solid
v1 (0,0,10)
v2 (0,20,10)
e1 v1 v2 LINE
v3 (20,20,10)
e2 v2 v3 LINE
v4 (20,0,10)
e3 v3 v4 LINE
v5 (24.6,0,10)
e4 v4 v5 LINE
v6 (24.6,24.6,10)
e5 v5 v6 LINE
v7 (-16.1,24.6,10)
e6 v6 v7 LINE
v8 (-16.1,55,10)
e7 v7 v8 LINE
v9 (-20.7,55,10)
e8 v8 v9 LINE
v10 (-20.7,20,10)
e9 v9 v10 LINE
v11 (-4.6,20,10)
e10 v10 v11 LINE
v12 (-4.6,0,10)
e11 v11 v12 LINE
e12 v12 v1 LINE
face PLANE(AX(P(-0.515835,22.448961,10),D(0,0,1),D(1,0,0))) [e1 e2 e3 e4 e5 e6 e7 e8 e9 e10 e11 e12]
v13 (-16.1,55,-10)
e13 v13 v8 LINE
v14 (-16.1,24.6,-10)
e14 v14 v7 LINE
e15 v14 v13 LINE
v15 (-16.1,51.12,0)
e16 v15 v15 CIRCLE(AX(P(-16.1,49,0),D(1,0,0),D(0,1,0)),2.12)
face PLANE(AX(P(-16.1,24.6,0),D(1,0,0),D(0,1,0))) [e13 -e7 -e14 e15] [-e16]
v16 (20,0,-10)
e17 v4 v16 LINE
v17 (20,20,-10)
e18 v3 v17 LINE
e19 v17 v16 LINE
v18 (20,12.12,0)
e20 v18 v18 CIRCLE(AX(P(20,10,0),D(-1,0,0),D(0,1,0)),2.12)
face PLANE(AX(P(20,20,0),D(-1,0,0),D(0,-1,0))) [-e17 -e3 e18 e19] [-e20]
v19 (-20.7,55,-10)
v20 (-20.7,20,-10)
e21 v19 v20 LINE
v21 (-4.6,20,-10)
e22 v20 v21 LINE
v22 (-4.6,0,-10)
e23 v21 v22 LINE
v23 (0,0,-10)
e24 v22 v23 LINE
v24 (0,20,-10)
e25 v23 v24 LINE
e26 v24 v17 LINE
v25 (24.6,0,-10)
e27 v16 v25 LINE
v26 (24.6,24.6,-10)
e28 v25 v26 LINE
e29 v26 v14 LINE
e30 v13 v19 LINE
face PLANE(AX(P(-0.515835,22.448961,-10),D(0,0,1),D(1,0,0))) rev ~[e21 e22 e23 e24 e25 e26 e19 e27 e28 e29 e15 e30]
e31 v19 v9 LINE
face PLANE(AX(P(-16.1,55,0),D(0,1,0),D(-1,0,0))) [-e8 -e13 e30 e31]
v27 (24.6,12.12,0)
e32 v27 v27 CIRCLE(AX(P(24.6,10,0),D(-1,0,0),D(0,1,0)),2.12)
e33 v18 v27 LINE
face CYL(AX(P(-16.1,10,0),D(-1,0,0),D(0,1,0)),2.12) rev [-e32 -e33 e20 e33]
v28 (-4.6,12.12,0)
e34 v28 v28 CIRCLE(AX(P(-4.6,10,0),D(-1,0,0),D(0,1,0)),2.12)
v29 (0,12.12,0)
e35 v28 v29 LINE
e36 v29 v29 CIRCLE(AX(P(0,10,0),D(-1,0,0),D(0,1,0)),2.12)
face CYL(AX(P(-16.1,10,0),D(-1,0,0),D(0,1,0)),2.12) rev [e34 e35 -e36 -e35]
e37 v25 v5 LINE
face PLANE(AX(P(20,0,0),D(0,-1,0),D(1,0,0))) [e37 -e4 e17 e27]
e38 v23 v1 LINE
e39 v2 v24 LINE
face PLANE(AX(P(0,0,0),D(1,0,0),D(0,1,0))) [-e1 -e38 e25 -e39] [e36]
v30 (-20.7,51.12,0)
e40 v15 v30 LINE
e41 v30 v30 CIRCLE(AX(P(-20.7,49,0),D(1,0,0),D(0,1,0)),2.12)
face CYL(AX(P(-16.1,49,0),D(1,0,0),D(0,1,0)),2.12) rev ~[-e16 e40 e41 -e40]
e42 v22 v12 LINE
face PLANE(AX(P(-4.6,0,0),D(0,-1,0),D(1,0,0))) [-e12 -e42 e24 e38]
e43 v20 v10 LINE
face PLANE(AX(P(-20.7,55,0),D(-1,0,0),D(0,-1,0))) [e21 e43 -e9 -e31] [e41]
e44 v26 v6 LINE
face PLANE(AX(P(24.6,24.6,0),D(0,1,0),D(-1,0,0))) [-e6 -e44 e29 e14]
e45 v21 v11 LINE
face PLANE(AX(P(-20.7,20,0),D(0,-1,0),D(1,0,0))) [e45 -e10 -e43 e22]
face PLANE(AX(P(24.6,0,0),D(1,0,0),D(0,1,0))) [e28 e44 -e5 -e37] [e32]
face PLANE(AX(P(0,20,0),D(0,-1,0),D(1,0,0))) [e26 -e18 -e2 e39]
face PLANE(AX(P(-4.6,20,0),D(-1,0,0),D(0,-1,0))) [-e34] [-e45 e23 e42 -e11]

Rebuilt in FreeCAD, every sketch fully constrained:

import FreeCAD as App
import Part
import Sketcher
Q = App.Units.Quantity


def add_polygon(sketch, points):
    """Adds a closed chain of lines whose ends are joined by coincident constraints."""
    first, n = sketch.GeometryCount, len(points)
    for a, b in zip(points, points[1:] + points[:1]):
        sketch.addGeometry(Part.LineSegment(App.Vector(*a, 0), App.Vector(*b, 0)), False)
    for i in range(n):
        sketch.addConstraint(Sketcher.Constraint("Coincident", first + i, 2, first + (i + 1) % n, 1))

doc = App.newDocument("Part")
body = doc.addObject("PartDesign::Body", "Body")

# Sketch on XY plane
sketch1 = doc.addObject("Sketcher::SketchObject", "Sketch")
body.addObject(sketch1)
sketch1.AttachmentSupport = (doc.XY_Plane, [""])
sketch1.MapMode = "FlatFace"
add_polygon(sketch1, [(20, 0), (24.6, 0), (24.6, 24.6), (-16.1, 24.6), (-16.1, 55), (-20.7, 55), (-20.7, 20), (-4.6, 20), (-4.6, 0), (0, 0), (0, 20), (20, 20)])  # lines 0-11
sketch1.addConstraint([
    Sketcher.Constraint("Horizontal", 0),
    Sketcher.Constraint("Vertical", 1),
    Sketcher.Constraint("Horizontal", 2),
    Sketcher.Constraint("Vertical", 3),
    Sketcher.Constraint("Horizontal", 4),
    Sketcher.Constraint("Vertical", 5),
    Sketcher.Constraint("Horizontal", 6),
    Sketcher.Constraint("Vertical", 7),
    Sketcher.Constraint("Horizontal", 8),
    Sketcher.Constraint("Vertical", 9),
    Sketcher.Constraint("Horizontal", 10),
    Sketcher.Constraint("Vertical", 11),
    Sketcher.Constraint("Coincident", 8, 2, -1, 1),
    Sketcher.Constraint("PointOnObject", 0, 2, -1),
    Sketcher.Constraint("Horizontal", 6, 2, 9, 2),
    Sketcher.Constraint("Equal", 0, 4),
    Sketcher.Constraint("Equal", 4, 8),
    Sketcher.Constraint("Equal", 10, 7),
    Sketcher.Constraint("DistanceX", 10, 1, 10, 2, Q("20 mm")),
    Sketcher.Constraint("DistanceY", 5, 2, 5, 1, Q("35 mm")),
    Sketcher.Constraint("DistanceX", 0, 1, 0, 2, Q("4.6 mm")),
    Sketcher.Constraint("DistanceX", 2, 2, 2, 1, Q("40.7 mm")),
    Sketcher.Constraint("DistanceY", 1, 1, 1, 2, Q("24.6 mm")),
])
pad1 = doc.addObject("PartDesign::Pad", "Pad")
body.addObject(pad1)
pad1.Profile = sketch1
pad1.Length = 20
pad1.Midplane = True

# Sketch on YZ plane
sketch2 = doc.addObject("Sketcher::SketchObject", "Sketch001")
body.addObject(sketch2)
sketch2.AttachmentSupport = (doc.YZ_Plane, [""])
sketch2.MapMode = "FlatFace"
sketch2.AttachmentOffset = App.Placement(App.Vector(0, 0, -16.1), App.Rotation())
sketch2.addGeometry([
    Part.Circle(App.Vector(49, 0, 0), App.Vector(0, 0, 1), 2.1),
    Part.Circle(App.Vector(10, 0, 0), App.Vector(0, 0, 1), 2.1),
], False)
sketch2.addConstraint([
    Sketcher.Constraint("Equal", 0, 1),
    Sketcher.Constraint("PointOnObject", 0, 3, -1),
    Sketcher.Constraint("PointOnObject", 1, 3, -1),
    Sketcher.Constraint("Diameter", 0, Q("4.24 mm")),
    Sketcher.Constraint("DistanceX", -1, 1, 0, 3, Q("49 mm")),
    Sketcher.Constraint("DistanceX", -1, 1, 1, 3, Q("10 mm")),
])
pocket1 = doc.addObject("PartDesign::Pocket", "Pocket")
body.addObject(pocket1)
pocket1.Profile = sketch2
pocket1.Type = "ThroughAll"
pocket1.Midplane = True

doc.recompute()
